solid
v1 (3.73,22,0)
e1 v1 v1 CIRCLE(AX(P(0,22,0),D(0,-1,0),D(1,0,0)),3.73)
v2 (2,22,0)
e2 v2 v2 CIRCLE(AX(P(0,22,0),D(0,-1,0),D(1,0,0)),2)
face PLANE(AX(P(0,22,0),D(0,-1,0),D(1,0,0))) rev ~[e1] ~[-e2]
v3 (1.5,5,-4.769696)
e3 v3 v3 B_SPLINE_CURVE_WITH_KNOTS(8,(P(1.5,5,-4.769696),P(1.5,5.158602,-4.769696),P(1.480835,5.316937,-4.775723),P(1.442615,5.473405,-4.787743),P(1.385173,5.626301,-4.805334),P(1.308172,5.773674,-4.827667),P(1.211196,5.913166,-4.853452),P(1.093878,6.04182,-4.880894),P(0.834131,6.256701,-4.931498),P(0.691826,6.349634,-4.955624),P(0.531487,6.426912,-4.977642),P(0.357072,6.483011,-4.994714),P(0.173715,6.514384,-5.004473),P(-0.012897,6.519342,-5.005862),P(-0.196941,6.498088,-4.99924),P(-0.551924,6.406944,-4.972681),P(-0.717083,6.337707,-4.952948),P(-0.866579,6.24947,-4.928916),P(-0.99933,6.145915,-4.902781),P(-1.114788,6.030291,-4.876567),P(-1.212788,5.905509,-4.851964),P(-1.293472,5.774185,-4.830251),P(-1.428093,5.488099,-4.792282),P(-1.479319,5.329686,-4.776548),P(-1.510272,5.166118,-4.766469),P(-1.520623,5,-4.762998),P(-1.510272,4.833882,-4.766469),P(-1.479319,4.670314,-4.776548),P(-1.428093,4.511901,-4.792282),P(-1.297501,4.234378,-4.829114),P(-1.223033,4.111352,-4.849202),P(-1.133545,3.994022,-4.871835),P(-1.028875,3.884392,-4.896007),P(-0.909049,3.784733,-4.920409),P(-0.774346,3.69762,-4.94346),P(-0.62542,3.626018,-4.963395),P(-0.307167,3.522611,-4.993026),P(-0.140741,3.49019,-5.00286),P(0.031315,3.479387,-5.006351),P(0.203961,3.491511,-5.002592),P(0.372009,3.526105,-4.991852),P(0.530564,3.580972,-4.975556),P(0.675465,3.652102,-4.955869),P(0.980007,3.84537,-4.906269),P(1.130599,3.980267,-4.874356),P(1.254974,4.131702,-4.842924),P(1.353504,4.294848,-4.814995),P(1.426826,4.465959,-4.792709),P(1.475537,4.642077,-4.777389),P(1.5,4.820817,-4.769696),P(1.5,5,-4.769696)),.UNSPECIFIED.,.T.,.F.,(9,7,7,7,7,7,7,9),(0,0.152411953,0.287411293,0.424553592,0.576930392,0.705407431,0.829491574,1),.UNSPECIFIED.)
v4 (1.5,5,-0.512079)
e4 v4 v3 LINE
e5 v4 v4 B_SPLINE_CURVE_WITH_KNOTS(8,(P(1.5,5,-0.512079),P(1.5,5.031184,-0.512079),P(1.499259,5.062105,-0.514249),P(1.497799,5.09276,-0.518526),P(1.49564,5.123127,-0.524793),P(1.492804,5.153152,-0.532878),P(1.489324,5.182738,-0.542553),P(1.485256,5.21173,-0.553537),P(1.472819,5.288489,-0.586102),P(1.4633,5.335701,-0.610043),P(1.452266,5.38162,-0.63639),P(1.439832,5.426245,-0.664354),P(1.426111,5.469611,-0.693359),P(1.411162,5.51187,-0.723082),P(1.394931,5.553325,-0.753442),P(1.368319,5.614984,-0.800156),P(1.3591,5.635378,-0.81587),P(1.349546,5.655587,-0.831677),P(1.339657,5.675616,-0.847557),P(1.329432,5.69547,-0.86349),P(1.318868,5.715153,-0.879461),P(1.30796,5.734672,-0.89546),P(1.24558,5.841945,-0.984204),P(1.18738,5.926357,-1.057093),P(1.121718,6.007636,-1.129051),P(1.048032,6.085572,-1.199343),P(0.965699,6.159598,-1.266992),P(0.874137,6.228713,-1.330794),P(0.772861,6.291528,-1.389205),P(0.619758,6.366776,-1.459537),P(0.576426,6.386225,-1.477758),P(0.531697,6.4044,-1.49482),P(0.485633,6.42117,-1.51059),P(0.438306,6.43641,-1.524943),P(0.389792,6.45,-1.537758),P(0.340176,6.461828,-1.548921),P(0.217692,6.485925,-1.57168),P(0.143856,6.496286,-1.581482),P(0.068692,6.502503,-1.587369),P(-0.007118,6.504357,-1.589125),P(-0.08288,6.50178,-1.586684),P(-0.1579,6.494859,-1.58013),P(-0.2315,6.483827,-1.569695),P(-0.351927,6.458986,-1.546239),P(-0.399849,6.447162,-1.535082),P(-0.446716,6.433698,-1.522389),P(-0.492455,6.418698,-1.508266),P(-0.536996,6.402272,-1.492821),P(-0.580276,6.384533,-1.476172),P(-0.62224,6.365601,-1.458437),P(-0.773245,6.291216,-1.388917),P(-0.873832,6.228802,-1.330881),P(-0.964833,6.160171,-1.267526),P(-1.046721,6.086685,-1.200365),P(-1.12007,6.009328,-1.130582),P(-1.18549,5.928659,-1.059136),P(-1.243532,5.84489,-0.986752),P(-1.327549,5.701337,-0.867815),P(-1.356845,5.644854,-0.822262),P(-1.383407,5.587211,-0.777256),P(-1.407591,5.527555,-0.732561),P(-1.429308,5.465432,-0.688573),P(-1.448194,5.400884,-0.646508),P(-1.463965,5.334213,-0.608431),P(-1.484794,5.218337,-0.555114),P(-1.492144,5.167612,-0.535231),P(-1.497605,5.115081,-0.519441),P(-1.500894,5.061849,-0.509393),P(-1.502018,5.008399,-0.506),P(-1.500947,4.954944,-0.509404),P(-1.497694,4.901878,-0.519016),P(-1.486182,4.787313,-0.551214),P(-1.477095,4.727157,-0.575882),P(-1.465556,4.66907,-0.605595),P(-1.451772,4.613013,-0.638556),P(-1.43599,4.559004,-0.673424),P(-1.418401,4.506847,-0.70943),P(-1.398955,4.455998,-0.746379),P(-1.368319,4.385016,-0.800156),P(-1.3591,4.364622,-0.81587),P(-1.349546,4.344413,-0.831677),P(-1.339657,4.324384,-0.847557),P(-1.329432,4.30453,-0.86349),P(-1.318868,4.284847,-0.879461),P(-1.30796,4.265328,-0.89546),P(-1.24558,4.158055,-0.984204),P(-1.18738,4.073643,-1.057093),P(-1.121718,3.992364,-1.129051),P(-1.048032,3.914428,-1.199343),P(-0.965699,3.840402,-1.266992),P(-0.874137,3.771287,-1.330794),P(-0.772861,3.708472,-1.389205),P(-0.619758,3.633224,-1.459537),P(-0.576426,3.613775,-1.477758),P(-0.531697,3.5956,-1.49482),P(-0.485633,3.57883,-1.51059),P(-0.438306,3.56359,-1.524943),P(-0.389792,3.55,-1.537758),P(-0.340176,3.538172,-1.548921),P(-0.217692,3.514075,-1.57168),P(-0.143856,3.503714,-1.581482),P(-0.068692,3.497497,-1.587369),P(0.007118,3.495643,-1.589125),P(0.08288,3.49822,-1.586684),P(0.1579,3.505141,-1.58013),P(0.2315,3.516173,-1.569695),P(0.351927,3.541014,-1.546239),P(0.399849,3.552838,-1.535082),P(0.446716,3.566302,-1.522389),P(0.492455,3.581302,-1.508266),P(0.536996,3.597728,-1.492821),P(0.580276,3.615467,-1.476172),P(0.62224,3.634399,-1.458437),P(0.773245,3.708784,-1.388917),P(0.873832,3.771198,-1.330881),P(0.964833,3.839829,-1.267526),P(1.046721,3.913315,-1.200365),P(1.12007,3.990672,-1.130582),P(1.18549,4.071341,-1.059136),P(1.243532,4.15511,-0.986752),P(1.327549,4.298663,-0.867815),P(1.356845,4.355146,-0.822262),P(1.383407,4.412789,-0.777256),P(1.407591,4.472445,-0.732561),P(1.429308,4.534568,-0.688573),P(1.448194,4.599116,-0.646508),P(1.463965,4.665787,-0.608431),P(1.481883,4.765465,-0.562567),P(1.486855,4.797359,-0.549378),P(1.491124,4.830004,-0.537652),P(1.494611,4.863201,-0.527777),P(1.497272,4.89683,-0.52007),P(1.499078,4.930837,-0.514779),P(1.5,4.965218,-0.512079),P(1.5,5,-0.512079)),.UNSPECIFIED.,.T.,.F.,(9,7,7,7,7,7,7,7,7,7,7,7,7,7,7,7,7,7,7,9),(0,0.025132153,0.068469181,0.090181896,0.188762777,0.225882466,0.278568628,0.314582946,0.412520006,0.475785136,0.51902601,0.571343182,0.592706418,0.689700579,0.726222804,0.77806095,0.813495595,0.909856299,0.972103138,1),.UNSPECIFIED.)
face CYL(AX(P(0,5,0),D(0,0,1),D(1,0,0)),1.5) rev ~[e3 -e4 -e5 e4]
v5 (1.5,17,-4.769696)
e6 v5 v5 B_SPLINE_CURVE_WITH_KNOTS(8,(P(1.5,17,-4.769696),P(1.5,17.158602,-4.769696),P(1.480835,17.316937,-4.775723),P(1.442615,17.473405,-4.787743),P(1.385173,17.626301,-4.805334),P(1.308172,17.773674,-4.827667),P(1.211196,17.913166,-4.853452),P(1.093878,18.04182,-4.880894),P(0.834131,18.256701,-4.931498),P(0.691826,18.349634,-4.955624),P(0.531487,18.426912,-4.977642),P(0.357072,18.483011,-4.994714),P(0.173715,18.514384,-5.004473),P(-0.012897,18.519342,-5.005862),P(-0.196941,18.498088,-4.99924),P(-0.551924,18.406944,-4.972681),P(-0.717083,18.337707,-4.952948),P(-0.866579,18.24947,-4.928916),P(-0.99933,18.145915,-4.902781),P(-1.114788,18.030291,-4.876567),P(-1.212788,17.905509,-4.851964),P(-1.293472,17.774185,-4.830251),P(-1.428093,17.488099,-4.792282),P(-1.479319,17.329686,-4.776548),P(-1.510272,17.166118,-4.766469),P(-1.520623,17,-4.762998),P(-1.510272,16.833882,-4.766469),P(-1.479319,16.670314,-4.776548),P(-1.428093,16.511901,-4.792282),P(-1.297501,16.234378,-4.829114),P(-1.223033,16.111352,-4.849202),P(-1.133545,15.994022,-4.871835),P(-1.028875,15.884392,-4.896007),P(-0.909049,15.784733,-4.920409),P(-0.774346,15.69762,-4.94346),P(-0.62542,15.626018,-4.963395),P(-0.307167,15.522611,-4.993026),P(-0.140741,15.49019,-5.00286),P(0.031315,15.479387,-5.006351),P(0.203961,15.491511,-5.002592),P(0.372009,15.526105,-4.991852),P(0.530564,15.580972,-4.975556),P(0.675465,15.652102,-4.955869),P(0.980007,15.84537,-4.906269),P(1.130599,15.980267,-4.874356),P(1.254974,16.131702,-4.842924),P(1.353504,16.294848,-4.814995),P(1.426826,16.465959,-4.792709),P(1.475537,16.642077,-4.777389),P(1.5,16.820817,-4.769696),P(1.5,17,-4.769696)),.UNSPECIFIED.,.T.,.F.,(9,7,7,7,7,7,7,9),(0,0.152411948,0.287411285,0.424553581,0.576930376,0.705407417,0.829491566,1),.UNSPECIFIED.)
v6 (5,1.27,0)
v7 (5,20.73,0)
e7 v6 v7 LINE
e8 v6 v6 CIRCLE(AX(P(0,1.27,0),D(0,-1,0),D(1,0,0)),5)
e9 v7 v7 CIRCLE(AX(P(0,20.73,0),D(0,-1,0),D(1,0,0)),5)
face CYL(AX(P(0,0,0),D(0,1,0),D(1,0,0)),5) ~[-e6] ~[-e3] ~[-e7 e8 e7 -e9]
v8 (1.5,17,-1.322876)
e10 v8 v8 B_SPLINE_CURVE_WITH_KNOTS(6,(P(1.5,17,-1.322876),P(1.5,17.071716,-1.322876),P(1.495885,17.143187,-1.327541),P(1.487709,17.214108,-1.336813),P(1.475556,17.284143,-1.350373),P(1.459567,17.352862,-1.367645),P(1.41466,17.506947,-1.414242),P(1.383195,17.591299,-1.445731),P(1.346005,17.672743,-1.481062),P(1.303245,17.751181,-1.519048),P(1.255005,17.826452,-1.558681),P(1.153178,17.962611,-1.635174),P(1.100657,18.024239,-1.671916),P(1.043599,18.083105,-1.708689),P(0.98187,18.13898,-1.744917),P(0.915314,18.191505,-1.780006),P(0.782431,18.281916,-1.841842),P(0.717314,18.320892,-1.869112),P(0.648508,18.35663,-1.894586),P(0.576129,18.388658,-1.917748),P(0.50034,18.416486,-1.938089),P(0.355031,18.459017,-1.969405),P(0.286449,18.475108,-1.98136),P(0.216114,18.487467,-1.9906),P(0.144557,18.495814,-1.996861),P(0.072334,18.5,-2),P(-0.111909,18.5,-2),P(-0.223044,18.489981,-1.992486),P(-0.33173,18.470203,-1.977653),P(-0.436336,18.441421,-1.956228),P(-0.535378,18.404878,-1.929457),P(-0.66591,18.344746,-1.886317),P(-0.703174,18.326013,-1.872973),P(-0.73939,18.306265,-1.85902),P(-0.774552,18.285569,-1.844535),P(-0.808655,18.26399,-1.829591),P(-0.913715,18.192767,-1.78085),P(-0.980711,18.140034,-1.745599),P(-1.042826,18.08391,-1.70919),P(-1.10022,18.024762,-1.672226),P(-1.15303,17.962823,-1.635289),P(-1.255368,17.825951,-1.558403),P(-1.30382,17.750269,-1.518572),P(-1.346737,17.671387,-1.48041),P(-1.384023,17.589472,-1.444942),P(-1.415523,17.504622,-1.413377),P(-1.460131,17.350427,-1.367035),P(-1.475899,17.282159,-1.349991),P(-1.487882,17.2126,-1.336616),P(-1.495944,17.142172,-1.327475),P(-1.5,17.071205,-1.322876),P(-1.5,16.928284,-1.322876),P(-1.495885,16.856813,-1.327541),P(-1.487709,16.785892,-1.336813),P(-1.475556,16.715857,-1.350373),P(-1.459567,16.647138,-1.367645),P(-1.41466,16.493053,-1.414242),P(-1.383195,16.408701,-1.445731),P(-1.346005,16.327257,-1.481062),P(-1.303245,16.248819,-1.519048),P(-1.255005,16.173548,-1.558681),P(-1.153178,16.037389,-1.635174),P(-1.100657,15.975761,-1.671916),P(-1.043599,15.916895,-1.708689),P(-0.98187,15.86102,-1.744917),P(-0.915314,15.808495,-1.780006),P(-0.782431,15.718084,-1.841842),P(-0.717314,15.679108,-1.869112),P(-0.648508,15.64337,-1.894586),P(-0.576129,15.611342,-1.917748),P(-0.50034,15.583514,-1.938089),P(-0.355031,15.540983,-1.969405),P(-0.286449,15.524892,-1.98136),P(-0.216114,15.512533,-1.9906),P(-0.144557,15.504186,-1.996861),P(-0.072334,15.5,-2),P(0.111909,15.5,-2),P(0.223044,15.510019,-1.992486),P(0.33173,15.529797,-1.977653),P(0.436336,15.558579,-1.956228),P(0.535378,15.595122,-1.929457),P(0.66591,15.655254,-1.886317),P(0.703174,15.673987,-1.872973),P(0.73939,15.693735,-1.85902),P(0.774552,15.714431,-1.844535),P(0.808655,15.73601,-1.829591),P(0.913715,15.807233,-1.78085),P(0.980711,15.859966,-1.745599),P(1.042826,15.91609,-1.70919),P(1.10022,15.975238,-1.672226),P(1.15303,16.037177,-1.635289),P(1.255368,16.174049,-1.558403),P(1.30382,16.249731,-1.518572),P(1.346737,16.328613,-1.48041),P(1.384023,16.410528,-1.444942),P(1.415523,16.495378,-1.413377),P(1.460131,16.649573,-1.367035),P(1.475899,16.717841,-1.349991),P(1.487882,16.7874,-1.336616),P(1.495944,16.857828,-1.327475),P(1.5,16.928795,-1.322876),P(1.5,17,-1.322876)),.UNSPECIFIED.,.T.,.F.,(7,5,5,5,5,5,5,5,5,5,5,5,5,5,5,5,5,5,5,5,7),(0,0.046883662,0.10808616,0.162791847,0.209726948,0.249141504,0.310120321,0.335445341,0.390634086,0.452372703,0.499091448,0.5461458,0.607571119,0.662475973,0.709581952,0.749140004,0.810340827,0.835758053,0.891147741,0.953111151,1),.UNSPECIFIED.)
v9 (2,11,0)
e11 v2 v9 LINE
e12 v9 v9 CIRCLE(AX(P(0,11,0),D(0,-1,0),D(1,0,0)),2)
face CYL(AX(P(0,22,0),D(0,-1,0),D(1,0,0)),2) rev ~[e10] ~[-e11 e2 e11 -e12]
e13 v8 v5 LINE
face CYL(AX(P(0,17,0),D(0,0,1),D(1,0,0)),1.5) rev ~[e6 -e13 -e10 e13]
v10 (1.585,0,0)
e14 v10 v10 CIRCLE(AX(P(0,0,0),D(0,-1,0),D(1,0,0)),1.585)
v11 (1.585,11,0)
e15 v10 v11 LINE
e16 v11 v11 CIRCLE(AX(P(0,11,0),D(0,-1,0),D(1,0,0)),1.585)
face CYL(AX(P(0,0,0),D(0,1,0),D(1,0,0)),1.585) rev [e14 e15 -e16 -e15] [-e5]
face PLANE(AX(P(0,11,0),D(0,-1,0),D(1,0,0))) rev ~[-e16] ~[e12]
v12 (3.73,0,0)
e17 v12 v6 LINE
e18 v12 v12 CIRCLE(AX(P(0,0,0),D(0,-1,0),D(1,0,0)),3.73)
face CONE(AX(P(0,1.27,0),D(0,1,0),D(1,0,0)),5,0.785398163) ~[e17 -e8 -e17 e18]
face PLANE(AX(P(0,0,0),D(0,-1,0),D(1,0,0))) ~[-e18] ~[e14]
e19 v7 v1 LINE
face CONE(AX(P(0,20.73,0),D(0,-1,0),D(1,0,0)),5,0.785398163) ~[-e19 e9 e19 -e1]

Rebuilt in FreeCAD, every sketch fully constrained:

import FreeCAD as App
import Part
import Sketcher

V = App.Vector
Q = App.Units.Quantity


def edges_at(feature, points):
    """Names of the edges that pass closest to the given points."""
    edges = feature.Shape.Edges
    near = lambda p: min(range(len(edges)), key=lambda i: edges[i].distToShape(Part.Vertex(*p))[0])
    return sorted({f"Edge{near(p) + 1}" for p in points})

doc = App.newDocument("Part")
body = doc.addObject("PartDesign::Body", "Body")

# Sketch on XY plane
sketch1 = doc.addObject("Sketcher::SketchObject", "Sketch")
body.addObject(sketch1)
sketch1.AttachmentSupport = (doc.XY_Plane, [""])
sketch1.MapMode = "FlatFace"
sketch1.addGeometry(Part.LineSegment(V(1.58, 11, 0), V(1.58, 0, 0)), False)
sketch1.addGeometry(Part.LineSegment(V(1.58, 0, 0), V(5, 0, 0)), False)
sketch1.addGeometry(Part.LineSegment(V(5, 0, 0), V(5, 22, 0)), False)
sketch1.addGeometry(Part.LineSegment(V(5, 22, 0), V(2, 22, 0)), False)
sketch1.addGeometry(Part.LineSegment(V(2, 22, 0), V(2, 11, 0)), False)
sketch1.addGeometry(Part.LineSegment(V(2, 11, 0), V(1.58, 11, 0)), False)
sketch1.addConstraint(Sketcher.Constraint("Coincident", 0, 2, 1, 1))
sketch1.addConstraint(Sketcher.Constraint("Coincident", 1, 2, 2, 1))
sketch1.addConstraint(Sketcher.Constraint("Coincident", 2, 2, 3, 1))
sketch1.addConstraint(Sketcher.Constraint("Coincident", 3, 2, 4, 1))
sketch1.addConstraint(Sketcher.Constraint("Coincident", 4, 2, 5, 1))
sketch1.addConstraint(Sketcher.Constraint("Coincident", 5, 2, 0, 1))
sketch1.addConstraint(Sketcher.Constraint("Vertical", 0))
sketch1.addConstraint(Sketcher.Constraint("Horizontal", 1))
sketch1.addConstraint(Sketcher.Constraint("Vertical", 2))
sketch1.addConstraint(Sketcher.Constraint("Horizontal", 3))
sketch1.addConstraint(Sketcher.Constraint("Vertical", 4))
sketch1.addConstraint(Sketcher.Constraint("Horizontal", 5))
sketch1.addConstraint(Sketcher.Constraint("PointOnObject", 0, 2, -1))
sketch1.addConstraint(Sketcher.Constraint("Equal", 0, 4))
sketch1.addConstraint(Sketcher.Constraint("DistanceX", 3, 2, 3, 1, Q("3 mm")))
sketch1.addConstraint(Sketcher.Constraint("DistanceY", 2, 1, 2, 2, Q("22 mm")))
sketch1.addConstraint(Sketcher.Constraint("DistanceX", -1, 1, 1, 2, Q("5 mm")))
sketch1.addConstraint(Sketcher.Constraint("DistanceX", -1, 1, 0, 2, Q("1.585 mm")))
revolution = doc.addObject("PartDesign::Revolution", "Revolution")
body.addObject(revolution)
revolution.Profile = sketch1
revolution.ReferenceAxis = (sketch1, ["V_Axis"])
revolution.Angle = 360

# Sketch on XY plane
sketch2 = doc.addObject("Sketcher::SketchObject", "Sketch001")
body.addObject(sketch2)
sketch2.AttachmentSupport = (doc.XY_Plane, [""])
sketch2.MapMode = "FlatFace"
sketch2.addGeometry(Part.Circle(V(0, 17, 0), V(0, 0, 1), 1.5), False)
sketch2.addGeometry(Part.Circle(V(0, 5, 0), V(0, 0, 1), 1.5), False)
sketch2.addConstraint(Sketcher.Constraint("Equal", 0, 1))
sketch2.addConstraint(Sketcher.Constraint("PointOnObject", 0, 3, -2))
sketch2.addConstraint(Sketcher.Constraint("PointOnObject", 1, 3, -2))
sketch2.addConstraint(Sketcher.Constraint("Diameter", 0, Q("3 mm")))
sketch2.addConstraint(Sketcher.Constraint("DistanceY", -1, 1, 1, 3, Q("5 mm")))
sketch2.addConstraint(Sketcher.Constraint("DistanceY", -1, 1, 0, 3, Q("17 mm")))
pocket1 = doc.addObject("PartDesign::Pocket", "Pocket")
body.addObject(pocket1)
pocket1.Profile = sketch2
pocket1.Length = 25.4
doc.recompute()

chamfer = doc.addObject("PartDesign::Chamfer", "Chamfer")
body.addObject(chamfer)
chamfer.Base = (pocket1, edges_at(pocket1, [(-5, 22, 0), (-5, 0, 0)]))
chamfer.Size = 1.27

doc.recompute()
